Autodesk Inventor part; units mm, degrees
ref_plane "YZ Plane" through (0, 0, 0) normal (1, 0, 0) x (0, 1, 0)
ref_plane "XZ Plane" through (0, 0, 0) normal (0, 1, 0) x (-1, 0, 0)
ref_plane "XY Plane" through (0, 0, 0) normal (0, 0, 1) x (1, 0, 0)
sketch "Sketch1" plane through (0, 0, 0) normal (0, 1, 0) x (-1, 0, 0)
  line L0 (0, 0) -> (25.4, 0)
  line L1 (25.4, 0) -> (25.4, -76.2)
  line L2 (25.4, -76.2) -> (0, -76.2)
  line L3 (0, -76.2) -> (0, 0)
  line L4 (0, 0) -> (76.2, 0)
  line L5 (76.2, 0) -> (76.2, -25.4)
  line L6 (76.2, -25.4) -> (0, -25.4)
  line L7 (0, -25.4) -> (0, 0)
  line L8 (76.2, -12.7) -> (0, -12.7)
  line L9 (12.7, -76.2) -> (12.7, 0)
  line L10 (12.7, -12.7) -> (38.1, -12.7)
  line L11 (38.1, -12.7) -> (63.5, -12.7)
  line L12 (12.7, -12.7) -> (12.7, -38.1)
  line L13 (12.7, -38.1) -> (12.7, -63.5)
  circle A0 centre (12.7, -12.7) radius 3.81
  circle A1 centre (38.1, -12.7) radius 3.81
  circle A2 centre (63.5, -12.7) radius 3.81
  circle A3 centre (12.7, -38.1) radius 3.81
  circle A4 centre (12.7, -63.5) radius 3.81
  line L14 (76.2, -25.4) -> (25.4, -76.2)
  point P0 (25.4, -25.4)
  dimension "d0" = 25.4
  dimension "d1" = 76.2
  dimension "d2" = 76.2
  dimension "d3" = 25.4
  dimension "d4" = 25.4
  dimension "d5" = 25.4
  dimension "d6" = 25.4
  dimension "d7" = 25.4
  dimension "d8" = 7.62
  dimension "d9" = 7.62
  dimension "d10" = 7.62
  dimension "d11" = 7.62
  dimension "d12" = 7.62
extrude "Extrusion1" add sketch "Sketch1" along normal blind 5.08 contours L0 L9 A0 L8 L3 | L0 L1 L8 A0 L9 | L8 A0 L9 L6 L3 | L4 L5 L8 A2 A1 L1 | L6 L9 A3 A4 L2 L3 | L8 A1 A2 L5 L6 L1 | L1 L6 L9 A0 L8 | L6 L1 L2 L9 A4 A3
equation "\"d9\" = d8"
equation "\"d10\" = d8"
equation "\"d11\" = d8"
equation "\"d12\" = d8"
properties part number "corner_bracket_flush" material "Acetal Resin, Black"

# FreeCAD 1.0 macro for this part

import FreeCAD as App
import Part
import Sketcher
Q = App.Units.Quantity

doc = App.newDocument("Part")
params = doc.addObject("Spreadsheet::Sheet", "Params")
for row, (alias, value) in enumerate([
    ("sketch1_diameter", "0.3 in"),
    ("sketch1_width", "1 in"),
    ("sketch1_width2", "3 in"),
    ("pad1_length", "0.2 in"),
], start=1):
    params.set(f"A{row}", alias)
    params.set(f"B{row}", "=" + value)
    params.setAlias(f"B{row}", alias)

body = doc.addObject("PartDesign::Body", "Body")

# Sketch on XZ plane
sketch1 = body.newObject("Sketcher::SketchObject", "Sketch")
sketch1.AttachmentSupport = (doc.getObject("XZ_Plane"), [""])
sketch1.MapMode = "FlatFace"
sketch1.addGeometry(Part.LineSegment(App.Vector(0, 0, 0), App.Vector(0, -76.2, 0)), False)
sketch1.addGeometry(Part.LineSegment(App.Vector(0, -76.2, 0), App.Vector(-25.4, -76.2, 0)), False)
sketch1.addGeometry(Part.LineSegment(App.Vector(-25.4, -76.2, 0), App.Vector(-25.4, -25.4, 0)), False)
sketch1.addGeometry(Part.LineSegment(App.Vector(-25.4, -25.4, 0), App.Vector(-76.2, -25.4, 0)), False)
sketch1.addGeometry(Part.LineSegment(App.Vector(-76.2, -25.4, 0), App.Vector(-76.2, 0, 0)), False)
sketch1.addGeometry(Part.LineSegment(App.Vector(-76.2, 0, 0), App.Vector(0, 0, 0)), False)
sketch1.addGeometry(Part.Circle(App.Vector(-12.7, -12.7, 0), App.Vector(0, 0, 1), 3.81), False)
sketch1.addGeometry(Part.Circle(App.Vector(-63.5, -12.7, 0), App.Vector(0, 0, 1), 3.81), False)
sketch1.addGeometry(Part.Circle(App.Vector(-38.1, -12.7, 0), App.Vector(0, 0, 1), 3.81), False)
sketch1.addGeometry(Part.Circle(App.Vector(-12.7, -38.1, 0), App.Vector(0, 0, 1), 3.81), False)
sketch1.addGeometry(Part.Circle(App.Vector(-12.7, -63.5, 0), App.Vector(0, 0, 1), 3.81), False)
sketch1.addConstraint(Sketcher.Constraint("Coincident", 0, 2, 1, 1))
sketch1.addConstraint(Sketcher.Constraint("Coincident", 1, 2, 2, 1))
sketch1.addConstraint(Sketcher.Constraint("Coincident", 2, 2, 3, 1))
sketch1.addConstraint(Sketcher.Constraint("Coincident", 3, 2, 4, 1))
sketch1.addConstraint(Sketcher.Constraint("Coincident", 4, 2, 5, 1))
sketch1.addConstraint(Sketcher.Constraint("Coincident", 5, 2, 0, 1))
sketch1.addConstraint(Sketcher.Constraint("Vertical", 0))
sketch1.addConstraint(Sketcher.Constraint("Horizontal", 1))
sketch1.addConstraint(Sketcher.Constraint("Vertical", 2))
sketch1.addConstraint(Sketcher.Constraint("Horizontal", 3))
sketch1.addConstraint(Sketcher.Constraint("Vertical", 4))
sketch1.addConstraint(Sketcher.Constraint("Horizontal", 5))
sketch1.addConstraint(Sketcher.Constraint("Coincident", 5, 2, -1, 1))
sketch1.addConstraint(Sketcher.Constraint("Equal", 6, 7))
sketch1.addConstraint(Sketcher.Constraint("Equal", 7, 8))
sketch1.addConstraint(Sketcher.Constraint("Equal", 8, 9))
sketch1.addConstraint(Sketcher.Constraint("Equal", 9, 10))
sketch1.addConstraint(Sketcher.Constraint("Horizontal", 6, 3, 7, 3))
sketch1.addConstraint(Sketcher.Constraint("Horizontal", 7, 3, 8, 3))
sketch1.addConstraint(Sketcher.Constraint("Vertical", 6, 3, 9, 3))
sketch1.addConstraint(Sketcher.Constraint("Vertical", 9, 3, 10, 3))
sketch1.addConstraint(Sketcher.Constraint("Equal", 5, 0))
sketch1.addConstraint(Sketcher.Constraint("Equal", 3, 2))
sketch1.addConstraint(Sketcher.Constraint("Diameter", 6, Q("0.3 in")))
sketch1.addConstraint(Sketcher.Constraint("DistanceX", 1, 2, 1, 1, Q("1 in")))
sketch1.addConstraint(Sketcher.Constraint("DistanceX", 5, 1, 5, 2, Q("3 in")))
sketch1.addConstraint(Sketcher.Constraint("DistanceX", 7, 3, 8, 3, Q("1 in")))
sketch1.addConstraint(Sketcher.Constraint("DistanceX", 8, 3, 6, 3, Q("1 in")))
sketch1.addConstraint(Sketcher.Constraint("DistanceY", 9, 3, 6, 3, Q("1 in")))
sketch1.addConstraint(Sketcher.Constraint("DistanceY", 10, 3, 9, 3, Q("1 in")))
sketch1.addConstraint(Sketcher.Constraint("DistanceX", 6, 3, -1, 1, Q("0.5 in")))
sketch1.addConstraint(Sketcher.Constraint("DistanceY", 6, 3, -1, 1, Q("0.5 in")))
sketch1.setExpression("Constraints[23]", "Params.sketch1_diameter")
sketch1.setExpression("Constraints[24]", "Params.sketch1_width")
sketch1.setExpression("Constraints[25]", "Params.sketch1_width2")
pad1 = body.newObject("PartDesign::Pad", "Pad")
pad1.Profile = sketch1
pad1.setExpression("Length", "Params.pad1_length")
pad1.Reversed = True

doc.recompute()
